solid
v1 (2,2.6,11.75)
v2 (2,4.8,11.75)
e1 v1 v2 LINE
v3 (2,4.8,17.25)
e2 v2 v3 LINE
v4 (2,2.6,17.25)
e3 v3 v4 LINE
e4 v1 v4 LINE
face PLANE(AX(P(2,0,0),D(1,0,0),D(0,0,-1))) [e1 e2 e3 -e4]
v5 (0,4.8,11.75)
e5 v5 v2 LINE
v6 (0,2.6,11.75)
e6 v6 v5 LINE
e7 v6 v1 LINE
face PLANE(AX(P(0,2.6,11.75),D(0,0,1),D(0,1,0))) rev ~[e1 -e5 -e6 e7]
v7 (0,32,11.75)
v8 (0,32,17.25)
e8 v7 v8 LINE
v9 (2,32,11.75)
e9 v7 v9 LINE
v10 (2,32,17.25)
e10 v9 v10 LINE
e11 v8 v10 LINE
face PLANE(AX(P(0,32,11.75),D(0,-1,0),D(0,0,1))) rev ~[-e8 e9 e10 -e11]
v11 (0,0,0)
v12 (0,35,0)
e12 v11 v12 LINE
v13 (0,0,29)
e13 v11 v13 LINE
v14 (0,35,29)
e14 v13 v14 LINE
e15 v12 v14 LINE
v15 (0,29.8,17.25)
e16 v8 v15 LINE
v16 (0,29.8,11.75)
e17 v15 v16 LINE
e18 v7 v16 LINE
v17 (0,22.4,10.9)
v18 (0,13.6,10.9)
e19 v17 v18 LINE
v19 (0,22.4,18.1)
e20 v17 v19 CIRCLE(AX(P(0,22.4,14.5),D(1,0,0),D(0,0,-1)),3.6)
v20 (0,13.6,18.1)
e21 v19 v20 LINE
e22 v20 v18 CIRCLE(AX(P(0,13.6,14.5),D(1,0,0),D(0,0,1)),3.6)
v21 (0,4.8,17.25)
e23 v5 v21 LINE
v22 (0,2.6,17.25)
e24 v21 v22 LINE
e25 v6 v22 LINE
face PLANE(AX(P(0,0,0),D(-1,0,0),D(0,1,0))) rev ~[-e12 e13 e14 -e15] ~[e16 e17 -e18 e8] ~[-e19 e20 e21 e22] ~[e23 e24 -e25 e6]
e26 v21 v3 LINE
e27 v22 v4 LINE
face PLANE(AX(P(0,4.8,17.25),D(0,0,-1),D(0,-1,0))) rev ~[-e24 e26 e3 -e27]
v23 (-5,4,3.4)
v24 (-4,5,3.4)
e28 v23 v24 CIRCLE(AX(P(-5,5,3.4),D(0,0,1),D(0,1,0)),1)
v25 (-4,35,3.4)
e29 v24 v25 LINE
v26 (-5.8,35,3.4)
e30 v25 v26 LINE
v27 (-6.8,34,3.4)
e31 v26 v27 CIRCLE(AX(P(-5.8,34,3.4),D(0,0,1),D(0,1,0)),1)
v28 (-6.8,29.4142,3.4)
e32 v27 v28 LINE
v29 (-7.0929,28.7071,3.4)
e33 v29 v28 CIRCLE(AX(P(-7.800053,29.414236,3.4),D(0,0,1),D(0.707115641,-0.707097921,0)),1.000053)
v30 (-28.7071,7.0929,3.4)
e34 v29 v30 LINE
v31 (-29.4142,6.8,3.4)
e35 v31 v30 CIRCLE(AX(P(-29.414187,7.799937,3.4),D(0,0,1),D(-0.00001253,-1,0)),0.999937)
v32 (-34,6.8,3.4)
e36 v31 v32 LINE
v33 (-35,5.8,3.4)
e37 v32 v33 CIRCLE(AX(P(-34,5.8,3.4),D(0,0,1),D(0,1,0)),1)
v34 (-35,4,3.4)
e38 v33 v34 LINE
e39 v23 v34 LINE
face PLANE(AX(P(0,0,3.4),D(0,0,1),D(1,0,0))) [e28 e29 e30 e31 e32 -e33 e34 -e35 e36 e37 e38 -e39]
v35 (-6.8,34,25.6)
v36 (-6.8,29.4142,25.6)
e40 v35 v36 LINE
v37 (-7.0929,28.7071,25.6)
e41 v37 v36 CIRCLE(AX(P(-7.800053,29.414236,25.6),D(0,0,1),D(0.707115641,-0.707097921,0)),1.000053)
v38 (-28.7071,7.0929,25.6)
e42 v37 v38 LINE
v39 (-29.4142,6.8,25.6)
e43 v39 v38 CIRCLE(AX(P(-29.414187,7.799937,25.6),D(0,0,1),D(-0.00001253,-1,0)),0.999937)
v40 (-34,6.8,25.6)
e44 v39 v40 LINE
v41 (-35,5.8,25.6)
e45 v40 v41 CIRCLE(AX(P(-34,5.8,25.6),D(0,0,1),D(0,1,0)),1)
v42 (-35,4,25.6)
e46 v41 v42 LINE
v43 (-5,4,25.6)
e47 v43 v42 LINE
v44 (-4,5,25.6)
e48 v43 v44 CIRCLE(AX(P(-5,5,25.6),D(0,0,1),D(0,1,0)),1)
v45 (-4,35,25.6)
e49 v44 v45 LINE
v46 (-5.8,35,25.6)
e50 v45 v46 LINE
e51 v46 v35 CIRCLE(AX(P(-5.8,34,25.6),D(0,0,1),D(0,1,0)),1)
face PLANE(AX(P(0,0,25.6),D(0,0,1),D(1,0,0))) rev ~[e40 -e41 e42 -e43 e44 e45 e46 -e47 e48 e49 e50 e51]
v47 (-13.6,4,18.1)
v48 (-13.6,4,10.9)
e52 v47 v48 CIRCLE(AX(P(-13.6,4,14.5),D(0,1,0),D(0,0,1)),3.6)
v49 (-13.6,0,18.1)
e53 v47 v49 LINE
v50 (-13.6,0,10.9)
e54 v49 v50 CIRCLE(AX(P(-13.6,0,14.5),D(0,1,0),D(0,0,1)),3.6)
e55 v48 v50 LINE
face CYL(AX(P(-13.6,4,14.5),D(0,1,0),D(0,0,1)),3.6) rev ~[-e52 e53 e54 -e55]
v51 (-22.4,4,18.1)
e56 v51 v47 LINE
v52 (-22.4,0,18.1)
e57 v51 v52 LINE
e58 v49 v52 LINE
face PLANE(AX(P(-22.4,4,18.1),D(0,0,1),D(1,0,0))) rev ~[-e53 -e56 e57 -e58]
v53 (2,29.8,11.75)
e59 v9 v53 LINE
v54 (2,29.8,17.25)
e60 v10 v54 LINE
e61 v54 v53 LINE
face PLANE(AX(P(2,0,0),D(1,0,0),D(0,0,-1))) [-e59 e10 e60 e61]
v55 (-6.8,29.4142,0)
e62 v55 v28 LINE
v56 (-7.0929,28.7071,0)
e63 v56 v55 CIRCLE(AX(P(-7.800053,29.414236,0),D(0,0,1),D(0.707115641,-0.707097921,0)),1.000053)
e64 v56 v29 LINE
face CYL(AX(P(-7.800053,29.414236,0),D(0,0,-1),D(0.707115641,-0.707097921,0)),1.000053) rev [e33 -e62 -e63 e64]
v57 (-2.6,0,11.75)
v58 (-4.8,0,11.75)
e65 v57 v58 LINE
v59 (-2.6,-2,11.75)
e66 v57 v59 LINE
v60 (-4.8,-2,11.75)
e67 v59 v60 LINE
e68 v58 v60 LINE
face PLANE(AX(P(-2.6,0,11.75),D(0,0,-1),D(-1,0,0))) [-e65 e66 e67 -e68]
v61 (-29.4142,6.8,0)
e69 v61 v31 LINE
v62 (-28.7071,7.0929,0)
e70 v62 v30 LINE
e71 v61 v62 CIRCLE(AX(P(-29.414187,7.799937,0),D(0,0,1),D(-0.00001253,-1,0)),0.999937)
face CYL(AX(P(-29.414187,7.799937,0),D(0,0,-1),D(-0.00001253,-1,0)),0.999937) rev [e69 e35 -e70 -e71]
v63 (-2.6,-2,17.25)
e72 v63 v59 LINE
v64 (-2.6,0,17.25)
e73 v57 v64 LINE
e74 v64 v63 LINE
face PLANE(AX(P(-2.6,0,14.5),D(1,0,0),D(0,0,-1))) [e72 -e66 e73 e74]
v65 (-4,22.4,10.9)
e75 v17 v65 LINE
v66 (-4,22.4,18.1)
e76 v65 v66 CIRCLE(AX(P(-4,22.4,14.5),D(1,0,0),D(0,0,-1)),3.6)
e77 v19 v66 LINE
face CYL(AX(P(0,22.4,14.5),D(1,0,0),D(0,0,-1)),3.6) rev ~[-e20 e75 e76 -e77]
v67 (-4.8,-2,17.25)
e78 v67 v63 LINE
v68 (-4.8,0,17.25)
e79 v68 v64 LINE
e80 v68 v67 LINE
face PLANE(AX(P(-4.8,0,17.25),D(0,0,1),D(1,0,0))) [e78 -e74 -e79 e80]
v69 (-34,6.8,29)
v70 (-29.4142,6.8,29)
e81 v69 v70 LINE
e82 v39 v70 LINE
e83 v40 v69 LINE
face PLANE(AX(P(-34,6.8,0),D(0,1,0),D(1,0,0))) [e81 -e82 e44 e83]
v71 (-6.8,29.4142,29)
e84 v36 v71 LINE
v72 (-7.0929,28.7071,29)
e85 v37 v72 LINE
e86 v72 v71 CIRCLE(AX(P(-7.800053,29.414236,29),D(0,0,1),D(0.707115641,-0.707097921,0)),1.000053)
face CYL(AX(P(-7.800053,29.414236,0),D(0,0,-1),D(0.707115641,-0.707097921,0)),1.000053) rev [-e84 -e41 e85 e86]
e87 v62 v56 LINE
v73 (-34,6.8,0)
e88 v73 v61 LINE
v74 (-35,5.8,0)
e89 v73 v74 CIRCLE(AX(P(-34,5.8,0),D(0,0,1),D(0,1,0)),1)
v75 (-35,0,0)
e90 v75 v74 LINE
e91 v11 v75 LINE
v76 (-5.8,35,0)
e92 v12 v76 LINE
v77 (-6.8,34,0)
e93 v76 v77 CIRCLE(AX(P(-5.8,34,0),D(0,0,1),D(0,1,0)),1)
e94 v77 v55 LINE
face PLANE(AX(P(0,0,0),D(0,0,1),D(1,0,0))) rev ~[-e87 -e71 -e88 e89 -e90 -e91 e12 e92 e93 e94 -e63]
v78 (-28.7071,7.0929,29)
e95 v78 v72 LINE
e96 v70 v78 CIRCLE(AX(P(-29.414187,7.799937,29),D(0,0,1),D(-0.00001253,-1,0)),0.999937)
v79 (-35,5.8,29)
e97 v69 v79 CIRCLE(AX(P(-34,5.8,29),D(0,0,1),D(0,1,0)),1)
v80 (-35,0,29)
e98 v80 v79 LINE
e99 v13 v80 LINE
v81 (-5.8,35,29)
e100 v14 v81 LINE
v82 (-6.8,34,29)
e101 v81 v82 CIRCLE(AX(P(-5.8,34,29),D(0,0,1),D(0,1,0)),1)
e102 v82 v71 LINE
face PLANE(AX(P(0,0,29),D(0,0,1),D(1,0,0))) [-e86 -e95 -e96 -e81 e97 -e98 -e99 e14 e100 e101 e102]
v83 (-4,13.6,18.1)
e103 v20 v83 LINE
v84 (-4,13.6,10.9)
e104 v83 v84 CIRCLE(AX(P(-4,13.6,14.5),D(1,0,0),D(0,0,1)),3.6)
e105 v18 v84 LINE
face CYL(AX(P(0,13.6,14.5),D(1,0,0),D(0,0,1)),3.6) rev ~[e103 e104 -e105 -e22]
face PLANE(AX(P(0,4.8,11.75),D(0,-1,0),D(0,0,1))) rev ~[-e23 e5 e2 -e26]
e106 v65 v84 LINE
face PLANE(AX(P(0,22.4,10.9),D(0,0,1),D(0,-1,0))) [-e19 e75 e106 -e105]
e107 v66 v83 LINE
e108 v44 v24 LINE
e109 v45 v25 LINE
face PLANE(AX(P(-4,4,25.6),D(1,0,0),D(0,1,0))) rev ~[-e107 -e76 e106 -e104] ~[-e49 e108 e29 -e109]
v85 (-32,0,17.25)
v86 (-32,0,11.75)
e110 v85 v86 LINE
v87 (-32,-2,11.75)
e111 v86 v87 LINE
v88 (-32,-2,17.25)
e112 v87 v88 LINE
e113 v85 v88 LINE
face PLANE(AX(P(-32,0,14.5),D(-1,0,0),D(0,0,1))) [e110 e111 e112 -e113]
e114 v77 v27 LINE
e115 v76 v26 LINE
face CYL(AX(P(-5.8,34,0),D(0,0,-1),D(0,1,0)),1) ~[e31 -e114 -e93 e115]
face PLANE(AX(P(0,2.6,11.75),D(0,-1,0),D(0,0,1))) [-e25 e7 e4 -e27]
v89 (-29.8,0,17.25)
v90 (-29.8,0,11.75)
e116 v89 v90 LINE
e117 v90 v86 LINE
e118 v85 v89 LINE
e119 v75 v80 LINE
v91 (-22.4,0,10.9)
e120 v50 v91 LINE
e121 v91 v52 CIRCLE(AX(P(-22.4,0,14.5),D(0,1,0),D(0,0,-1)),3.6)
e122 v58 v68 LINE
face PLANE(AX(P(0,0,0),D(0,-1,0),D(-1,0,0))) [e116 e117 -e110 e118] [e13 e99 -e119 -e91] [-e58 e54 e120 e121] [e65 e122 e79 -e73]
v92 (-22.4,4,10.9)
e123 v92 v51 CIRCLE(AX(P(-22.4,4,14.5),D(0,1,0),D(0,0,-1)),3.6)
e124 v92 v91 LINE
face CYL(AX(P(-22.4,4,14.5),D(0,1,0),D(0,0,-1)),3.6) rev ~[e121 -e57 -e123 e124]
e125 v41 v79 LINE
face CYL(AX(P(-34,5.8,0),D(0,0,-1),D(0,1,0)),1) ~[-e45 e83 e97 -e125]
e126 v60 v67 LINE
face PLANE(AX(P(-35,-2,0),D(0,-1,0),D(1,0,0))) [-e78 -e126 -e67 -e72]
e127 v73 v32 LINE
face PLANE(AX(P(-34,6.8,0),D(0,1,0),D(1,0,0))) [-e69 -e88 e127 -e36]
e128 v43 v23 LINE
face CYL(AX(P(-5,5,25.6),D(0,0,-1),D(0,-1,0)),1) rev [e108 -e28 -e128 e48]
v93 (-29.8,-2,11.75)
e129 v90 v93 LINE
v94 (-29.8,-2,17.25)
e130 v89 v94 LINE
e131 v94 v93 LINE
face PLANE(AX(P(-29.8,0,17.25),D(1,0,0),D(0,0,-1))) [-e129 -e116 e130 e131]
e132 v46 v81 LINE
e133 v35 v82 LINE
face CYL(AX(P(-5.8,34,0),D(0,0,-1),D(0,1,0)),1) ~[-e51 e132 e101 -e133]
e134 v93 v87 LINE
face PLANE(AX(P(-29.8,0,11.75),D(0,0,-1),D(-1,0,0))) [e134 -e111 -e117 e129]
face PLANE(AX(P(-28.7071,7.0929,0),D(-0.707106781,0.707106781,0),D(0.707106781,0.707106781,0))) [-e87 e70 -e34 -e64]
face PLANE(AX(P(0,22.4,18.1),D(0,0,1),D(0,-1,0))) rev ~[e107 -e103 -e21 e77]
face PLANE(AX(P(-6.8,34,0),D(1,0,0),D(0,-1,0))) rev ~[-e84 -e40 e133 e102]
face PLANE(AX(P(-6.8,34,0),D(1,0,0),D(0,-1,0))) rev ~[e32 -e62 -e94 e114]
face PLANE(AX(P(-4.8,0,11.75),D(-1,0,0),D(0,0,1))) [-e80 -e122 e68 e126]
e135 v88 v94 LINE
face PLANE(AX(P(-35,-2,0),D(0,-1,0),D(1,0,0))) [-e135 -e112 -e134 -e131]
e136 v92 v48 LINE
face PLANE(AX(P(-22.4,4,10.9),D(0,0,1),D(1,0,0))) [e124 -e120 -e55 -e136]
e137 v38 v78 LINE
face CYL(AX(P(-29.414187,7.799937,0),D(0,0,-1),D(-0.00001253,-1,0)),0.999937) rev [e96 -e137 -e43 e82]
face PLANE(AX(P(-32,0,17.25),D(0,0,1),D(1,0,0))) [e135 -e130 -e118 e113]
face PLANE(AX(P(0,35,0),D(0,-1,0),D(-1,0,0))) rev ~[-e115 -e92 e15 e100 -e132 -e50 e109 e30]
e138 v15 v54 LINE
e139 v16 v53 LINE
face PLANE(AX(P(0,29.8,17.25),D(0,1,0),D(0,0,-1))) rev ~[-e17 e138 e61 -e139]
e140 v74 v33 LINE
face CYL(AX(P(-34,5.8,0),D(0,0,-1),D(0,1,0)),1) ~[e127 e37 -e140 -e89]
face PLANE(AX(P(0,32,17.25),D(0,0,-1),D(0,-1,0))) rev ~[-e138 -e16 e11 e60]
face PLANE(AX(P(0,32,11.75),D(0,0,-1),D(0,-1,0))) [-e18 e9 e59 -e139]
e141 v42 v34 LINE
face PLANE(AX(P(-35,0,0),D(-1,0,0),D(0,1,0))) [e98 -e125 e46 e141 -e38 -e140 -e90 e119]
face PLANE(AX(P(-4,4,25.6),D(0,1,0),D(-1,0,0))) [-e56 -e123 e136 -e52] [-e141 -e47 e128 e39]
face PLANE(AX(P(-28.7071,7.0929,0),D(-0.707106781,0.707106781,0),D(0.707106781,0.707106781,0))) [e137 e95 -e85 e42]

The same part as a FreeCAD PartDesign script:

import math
import FreeCAD as App
import Part
import Sketcher
Q = App.Units.Quantity


def edges_at(feature, points):
    """Names of the edges that pass closest to the given points."""
    edges = feature.Shape.Edges
    near = lambda p: min(range(len(edges)), key=lambda i: edges[i].distToShape(Part.Vertex(*p))[0])
    return sorted({f"Edge{near(p) + 1}" for p in points})


def add_polygon(sketch, points):
    """Adds a closed chain of lines whose ends are joined by coincident constraints."""
    first, n = sketch.GeometryCount, len(points)
    for a, b in zip(points, points[1:] + points[:1]):
        sketch.addGeometry(Part.LineSegment(App.Vector(*a, 0), App.Vector(*b, 0)), False)
    for i in range(n):
        sketch.addConstraint(Sketcher.Constraint("Coincident", first + i, 2, first + (i + 1) % n, 1))

doc = App.newDocument("Part")
body = doc.addObject("PartDesign::Body", "Body")

# Sketch on XY plane
sketch1 = body.newObject("Sketcher::SketchObject", "Sketch")
sketch1.AttachmentSupport = (doc.getObject("XY_Plane"), [""])
sketch1.MapMode = "FlatFace"
sketch1.addGeometry(Part.LineSegment(App.Vector(-35, 0, 0), App.Vector(0, 0, 0)), False)
sketch1.addGeometry(Part.LineSegment(App.Vector(0, 0, 0), App.Vector(0, 35, 0)), False)
sketch1.addGeometry(Part.LineSegment(App.Vector(0, 35, 0), App.Vector(-5.8, 35, 0)), False)
sketch1.addGeometry(Part.ArcOfCircle(Part.Circle(App.Vector(-5.8, 34, 0), App.Vector(0, 0, 1), 1), math.radians(90), math.radians(180)), False)
sketch1.addGeometry(Part.LineSegment(App.Vector(-6.8, 34, 0), App.Vector(-6.8, 29.4, 0)), False)
sketch1.addGeometry(Part.ArcOfCircle(Part.Circle(App.Vector(-7.8, 29.4, 0), App.Vector(0, 0, 1), 1), math.radians(-45), math.radians(0)), False)
sketch1.addGeometry(Part.LineSegment(App.Vector(-7.1, 28.7, 0), App.Vector(-28.7, 7.1, 0)), False)
sketch1.addGeometry(Part.ArcOfCircle(Part.Circle(App.Vector(-29.4, 7.8, 0), App.Vector(0, 0, 1), 1), math.radians(-90), math.radians(-45)), False)
sketch1.addGeometry(Part.LineSegment(App.Vector(-29.4, 6.8, 0), App.Vector(-34, 6.8, 0)), False)
sketch1.addGeometry(Part.ArcOfCircle(Part.Circle(App.Vector(-34, 5.8, 0), App.Vector(0, 0, 1), 1), math.radians(90), math.radians(180)), False)
sketch1.addGeometry(Part.LineSegment(App.Vector(-35, 5.8, 0), App.Vector(-35, 0, 0)), False)
sketch1.addConstraint(Sketcher.Constraint("Coincident", 0, 2, 1, 1))
sketch1.addConstraint(Sketcher.Constraint("Coincident", 1, 2, 2, 1))
sketch1.addConstraint(Sketcher.Constraint("Tangent", 2, 2, 3, 1))
sketch1.addConstraint(Sketcher.Constraint("Tangent", 3, 2, 4, 1))
sketch1.addConstraint(Sketcher.Constraint("Tangent", 4, 2, 5, 2))
sketch1.addConstraint(Sketcher.Constraint("Tangent", 5, 1, 6, 1))
sketch1.addConstraint(Sketcher.Constraint("Tangent", 6, 2, 7, 2))
sketch1.addConstraint(Sketcher.Constraint("Tangent", 7, 1, 8, 1))
sketch1.addConstraint(Sketcher.Constraint("Tangent", 8, 2, 9, 1))
sketch1.addConstraint(Sketcher.Constraint("Tangent", 9, 2, 10, 1))
sketch1.addConstraint(Sketcher.Constraint("Coincident", 10, 2, 0, 1))
sketch1.addConstraint(Sketcher.Constraint("Horizontal", 0))
sketch1.addConstraint(Sketcher.Constraint("Vertical", 1))
sketch1.addConstraint(Sketcher.Constraint("Horizontal", 2))
sketch1.addConstraint(Sketcher.Constraint("Vertical", 4))
sketch1.addConstraint(Sketcher.Constraint("Horizontal", 8))
sketch1.addConstraint(Sketcher.Constraint("Vertical", 10))
sketch1.addConstraint(Sketcher.Constraint("Coincident", 0, 2, -1, 1))
sketch1.addConstraint(Sketcher.Constraint("Equal", 3, 5))
sketch1.addConstraint(Sketcher.Constraint("Equal", 5, 7))
sketch1.addConstraint(Sketcher.Constraint("Equal", 7, 9))
sketch1.addConstraint(Sketcher.Constraint("Equal", 0, 1))
sketch1.addConstraint(Sketcher.Constraint("Equal", 8, 4))
sketch1.addConstraint(Sketcher.Constraint("Equal", 2, 10))
sketch1.addConstraint(Sketcher.Constraint("Radius", 3, Q("1 mm")))
sketch1.addConstraint(Sketcher.Constraint("DistanceX", 0, 1, 0, 2, Q("35 mm")))
sketch1.addConstraint(Sketcher.Constraint("DistanceX", 3, 2, -1, 1, Q("6.8 mm")))
sketch1.addConstraint(Sketcher.Constraint("Distance", 6, Q("30.567 mm")))
pad1 = body.newObject("PartDesign::Pad", "Pad")
pad1.Profile = sketch1
pad1.Length = 29

# Sketch on XY plane
sketch2 = body.newObject("Sketcher::SketchObject", "Sketch001")
sketch2.AttachmentSupport = (doc.getObject("XY_Plane"), [""])
sketch2.MapMode = "FlatFace"
sketch2.AttachmentOffset = App.Placement(App.Vector(0, 0, 25.6), App.Rotation())
sketch2.addGeometry(Part.LineSegment(App.Vector(-4, 4, 0), App.Vector(-4, 35, 0)), False)
sketch2.addGeometry(Part.LineSegment(App.Vector(-4, 35, 0), App.Vector(-5.8, 35, 0)), False)
sketch2.addGeometry(Part.ArcOfCircle(Part.Circle(App.Vector(-5.8, 34, 0), App.Vector(0, 0, 1), 1), math.radians(90), math.radians(180)), False)
sketch2.addGeometry(Part.LineSegment(App.Vector(-6.8, 34, 0), App.Vector(-6.8, 29.4, 0)), False)
sketch2.addGeometry(Part.ArcOfCircle(Part.Circle(App.Vector(-7.8, 29.4, 0), App.Vector(0, 0, 1), 1), math.radians(-45), math.radians(0)), False)
sketch2.addGeometry(Part.LineSegment(App.Vector(-7.1, 28.7, 0), App.Vector(-28.7, 7.1, 0)), False)
sketch2.addGeometry(Part.ArcOfCircle(Part.Circle(App.Vector(-29.4, 7.8, 0), App.Vector(0, 0, 1), 1), math.radians(-90), math.radians(-45)), False)
sketch2.addGeometry(Part.LineSegment(App.Vector(-29.4, 6.8, 0), App.Vector(-34, 6.8, 0)), False)
sketch2.addGeometry(Part.ArcOfCircle(Part.Circle(App.Vector(-34, 5.8, 0), App.Vector(0, 0, 1), 1), math.radians(90), math.radians(180)), False)
sketch2.addGeometry(Part.LineSegment(App.Vector(-35, 5.8, 0), App.Vector(-35, 4, 0)), False)
sketch2.addGeometry(Part.LineSegment(App.Vector(-35, 4, 0), App.Vector(-4, 4, 0)), False)
sketch2.addConstraint(Sketcher.Constraint("Coincident", 0, 2, 1, 1))
sketch2.addConstraint(Sketcher.Constraint("Tangent", 1, 2, 2, 1))
sketch2.addConstraint(Sketcher.Constraint("Tangent", 2, 2, 3, 1))
sketch2.addConstraint(Sketcher.Constraint("Tangent", 3, 2, 4, 2))
sketch2.addConstraint(Sketcher.Constraint("Tangent", 4, 1, 5, 1))
sketch2.addConstraint(Sketcher.Constraint("Tangent", 5, 2, 6, 2))
sketch2.addConstraint(Sketcher.Constraint("Tangent", 6, 1, 7, 1))
sketch2.addConstraint(Sketcher.Constraint("Tangent", 7, 2, 8, 1))
sketch2.addConstraint(Sketcher.Constraint("Tangent", 8, 2, 9, 1))
sketch2.addConstraint(Sketcher.Constraint("Coincident", 9, 2, 10, 1))
sketch2.addConstraint(Sketcher.Constraint("Coincident", 10, 2, 0, 1))
sketch2.addConstraint(Sketcher.Constraint("Vertical", 0))
sketch2.addConstraint(Sketcher.Constraint("Horizontal", 1))
sketch2.addConstraint(Sketcher.Constraint("Vertical", 3))
sketch2.addConstraint(Sketcher.Constraint("Horizontal", 7))
sketch2.addConstraint(Sketcher.Constraint("Vertical", 9))
sketch2.addConstraint(Sketcher.Constraint("Horizontal", 10))
sketch2.addConstraint(Sketcher.Constraint("Equal", 2, 4))
sketch2.addConstraint(Sketcher.Constraint("Equal", 4, 6))
sketch2.addConstraint(Sketcher.Constraint("Equal", 6, 8))
sketch2.addConstraint(Sketcher.Constraint("Equal", 10, 0))
sketch2.addConstraint(Sketcher.Constraint("Equal", 7, 3))
sketch2.addConstraint(Sketcher.Constraint("Equal", 1, 9))
sketch2.addConstraint(Sketcher.Constraint("DistanceX", 0, 2, -1, 1, Q("4 mm")))
sketch2.addConstraint(Sketcher.Constraint("DistanceY", -1, 1, 9, 2, Q("4 mm")))
sketch2.addConstraint(Sketcher.Constraint("Radius", 2, Q("1 mm")))
sketch2.addConstraint(Sketcher.Constraint("DistanceX", 10, 1, 10, 2, Q("31 mm")))
sketch2.addConstraint(Sketcher.Constraint("DistanceX", 1, 2, 1, 1, Q("1.8 mm")))
sketch2.addConstraint(Sketcher.Constraint("Distance", 5, Q("30.567 mm")))
pocket1 = body.newObject("PartDesign::Pocket", "Pocket")
pocket1.Profile = sketch2
pocket1.Length = 22.2

# Sketch on XZ plane
sketch3 = body.newObject("Sketcher::SketchObject", "Sketch002")
sketch3.AttachmentSupport = (doc.getObject("XZ_Plane"), [""])
sketch3.MapMode = "FlatFace"
sketch3.AttachmentOffset = App.Placement(App.Vector(0, 0, -4), App.Rotation())
sketch3.addGeometry(Part.LineSegment(App.Vector(-13.6, 10.9, 0), App.Vector(-22.4, 10.9, 0)), False)
sketch3.addGeometry(Part.ArcOfCircle(Part.Circle(App.Vector(-22.4, 14.5, 0), App.Vector(0, 0, 1), 3.6), math.radians(90), math.radians(270)), False)
sketch3.addGeometry(Part.LineSegment(App.Vector(-22.4, 18.1, 0), App.Vector(-13.6, 18.1, 0)), False)
sketch3.addGeometry(Part.ArcOfCircle(Part.Circle(App.Vector(-13.6, 14.5, 0), App.Vector(0, 0, 1), 3.6), math.radians(-90), math.radians(90)), False)
sketch3.addConstraint(Sketcher.Constraint("Tangent", 0, 2, 1, 2))
sketch3.addConstraint(Sketcher.Constraint("Tangent", 1, 1, 2, 1))
sketch3.addConstraint(Sketcher.Constraint("Tangent", 2, 2, 3, 2))
sketch3.addConstraint(Sketcher.Constraint("Tangent", 3, 1, 0, 1))
sketch3.addConstraint(Sketcher.Constraint("Horizontal", 0))
sketch3.addConstraint(Sketcher.Constraint("Horizontal", 2))
sketch3.addConstraint(Sketcher.Constraint("Radius", 1, Q("3.6 mm")))
sketch3.addConstraint(Sketcher.Constraint("DistanceX", 0, 2, 0, 1, Q("8.8 mm")))
sketch3.addConstraint(Sketcher.Constraint("DistanceX", 1, 3, -1, 1, Q("22.4 mm")))
sketch3.addConstraint(Sketcher.Constraint("DistanceY", -1, 1, 1, 3, Q("14.5 mm")))
pocket2 = body.newObject("PartDesign::Pocket", "Pocket001")
pocket2.Profile = sketch3
pocket2.Length = 22.2
pocket2.Reversed = True
doc.recompute()

fillet = body.newObject("PartDesign::Fillet", "Fillet")
fillet.Base = (pocket2, edges_at(pocket2, [(-4, 4, 14.5)]))
fillet.Radius = 1
doc.recompute()

datumline = body.newObject("PartDesign::Line", "DatumLine")
datumline.Placement = App.Placement(App.Vector(-2, 2, 0), App.Rotation(App.Vector(0, 0, 1), App.Vector(0, 0, 1)))
polarpattern = body.newObject("PartDesign::PolarPattern", "PolarPattern")
polarpattern.Originals = [pocket2]
polarpattern.Axis = (datumline, [""])
polarpattern.Angle = 90
polarpattern.Occurrences = 2
polarpattern.Reversed = True
body.Tip = polarpattern

# Sketch on XZ plane
sketch4 = body.newObject("Sketcher::SketchObject", "Sketch003")
sketch4.AttachmentSupport = (doc.getObject("XZ_Plane"), [""])
sketch4.MapMode = "FlatFace"
add_polygon(sketch4, [(-32, 17.2), (-32, 11.8), (-29.8, 11.8), (-29.8, 17.2)])  # lines 0-3
add_polygon(sketch4, [(-2.6, 11.8), (-2.6, 17.2), (-4.8, 17.2), (-4.8, 11.8)])  # lines 4-7
sketch4.addConstraint(Sketcher.Constraint("Vertical", 0))
sketch4.addConstraint(Sketcher.Constraint("Horizontal", 1))
sketch4.addConstraint(Sketcher.Constraint("Vertical", 2))
sketch4.addConstraint(Sketcher.Constraint("Horizontal", 3))
sketch4.addConstraint(Sketcher.Constraint("Vertical", 4))
sketch4.addConstraint(Sketcher.Constraint("Horizontal", 5))
sketch4.addConstraint(Sketcher.Constraint("Vertical", 6))
sketch4.addConstraint(Sketcher.Constraint("Horizontal", 7))
sketch4.addConstraint(Sketcher.Constraint("Horizontal", 3, 2, 4, 2))
sketch4.addConstraint(Sketcher.Constraint("Horizontal", 1, 2, 6, 2))
sketch4.addConstraint(Sketcher.Constraint("Equal", 3, 5))
sketch4.addConstraint(Sketcher.Constraint("DistanceX", 1, 1, 1, 2, Q("2.2 mm")))
sketch4.addConstraint(Sketcher.Constraint("DistanceY", 0, 2, 0, 1, Q("5.5 mm")))
sketch4.addConstraint(Sketcher.Constraint("DistanceX", 4, 2, -1, 1, Q("2.6 mm")))
sketch4.addConstraint(Sketcher.Constraint("DistanceX", 0, 2, -1, 1, Q("32 mm")))
sketch4.addConstraint(Sketcher.Constraint("DistanceY", -1, 1, 0, 2, Q("11.75 mm")))
pad2 = body.newObject("PartDesign::Pad", "Pad001")
pad2.Profile = sketch4
pad2.Length = 2

# Sketch on YZ plane
sketch5 = body.newObject("Sketcher::SketchObject", "Sketch004")
sketch5.AttachmentSupport = (doc.getObject("YZ_Plane"), [""])
sketch5.MapMode = "FlatFace"
add_polygon(sketch5, [(29.8, 11.8), (32, 11.8), (32, 17.2), (29.8, 17.2)])  # lines 0-3
add_polygon(sketch5, [(2.6, 17.2), (2.6, 11.8), (4.8, 11.8), (4.8, 17.2)])  # lines 4-7
sketch5.addConstraint(Sketcher.Constraint("Horizontal", 0))
sketch5.addConstraint(Sketcher.Constraint("Vertical", 1))
sketch5.addConstraint(Sketcher.Constraint("Horizontal", 2))
sketch5.addConstraint(Sketcher.Constraint("Vertical", 3))
sketch5.addConstraint(Sketcher.Constraint("Vertical", 4))
sketch5.addConstraint(Sketcher.Constraint("Horizontal", 5))
sketch5.addConstraint(Sketcher.Constraint("Vertical", 6))
sketch5.addConstraint(Sketcher.Constraint("Horizontal", 7))
sketch5.addConstraint(Sketcher.Constraint("Horizontal", 3, 2, 4, 2))
sketch5.addConstraint(Sketcher.Constraint("Horizontal", 2, 2, 6, 2))
sketch5.addConstraint(Sketcher.Constraint("Equal", 2, 5))
sketch5.addConstraint(Sketcher.Constraint("DistanceX", 0, 1, 0, 2, Q("2.2 mm")))
sketch5.addConstraint(Sketcher.Constraint("DistanceY", 1, 1, 1, 2, Q("5.5 mm")))
sketch5.addConstraint(Sketcher.Constraint("DistanceX", -1, 1, 0, 2, Q("32 mm")))
sketch5.addConstraint(Sketcher.Constraint("DistanceX", 5, 2, 3, 2, Q("25 mm")))
sketch5.addConstraint(Sketcher.Constraint("DistanceY", -1, 1, 0, 2, Q("11.75 mm")))
pad3 = body.newObject("PartDesign::Pad", "Pad002")
pad3.Profile = sketch5
pad3.Length = 2

doc.recompute()
